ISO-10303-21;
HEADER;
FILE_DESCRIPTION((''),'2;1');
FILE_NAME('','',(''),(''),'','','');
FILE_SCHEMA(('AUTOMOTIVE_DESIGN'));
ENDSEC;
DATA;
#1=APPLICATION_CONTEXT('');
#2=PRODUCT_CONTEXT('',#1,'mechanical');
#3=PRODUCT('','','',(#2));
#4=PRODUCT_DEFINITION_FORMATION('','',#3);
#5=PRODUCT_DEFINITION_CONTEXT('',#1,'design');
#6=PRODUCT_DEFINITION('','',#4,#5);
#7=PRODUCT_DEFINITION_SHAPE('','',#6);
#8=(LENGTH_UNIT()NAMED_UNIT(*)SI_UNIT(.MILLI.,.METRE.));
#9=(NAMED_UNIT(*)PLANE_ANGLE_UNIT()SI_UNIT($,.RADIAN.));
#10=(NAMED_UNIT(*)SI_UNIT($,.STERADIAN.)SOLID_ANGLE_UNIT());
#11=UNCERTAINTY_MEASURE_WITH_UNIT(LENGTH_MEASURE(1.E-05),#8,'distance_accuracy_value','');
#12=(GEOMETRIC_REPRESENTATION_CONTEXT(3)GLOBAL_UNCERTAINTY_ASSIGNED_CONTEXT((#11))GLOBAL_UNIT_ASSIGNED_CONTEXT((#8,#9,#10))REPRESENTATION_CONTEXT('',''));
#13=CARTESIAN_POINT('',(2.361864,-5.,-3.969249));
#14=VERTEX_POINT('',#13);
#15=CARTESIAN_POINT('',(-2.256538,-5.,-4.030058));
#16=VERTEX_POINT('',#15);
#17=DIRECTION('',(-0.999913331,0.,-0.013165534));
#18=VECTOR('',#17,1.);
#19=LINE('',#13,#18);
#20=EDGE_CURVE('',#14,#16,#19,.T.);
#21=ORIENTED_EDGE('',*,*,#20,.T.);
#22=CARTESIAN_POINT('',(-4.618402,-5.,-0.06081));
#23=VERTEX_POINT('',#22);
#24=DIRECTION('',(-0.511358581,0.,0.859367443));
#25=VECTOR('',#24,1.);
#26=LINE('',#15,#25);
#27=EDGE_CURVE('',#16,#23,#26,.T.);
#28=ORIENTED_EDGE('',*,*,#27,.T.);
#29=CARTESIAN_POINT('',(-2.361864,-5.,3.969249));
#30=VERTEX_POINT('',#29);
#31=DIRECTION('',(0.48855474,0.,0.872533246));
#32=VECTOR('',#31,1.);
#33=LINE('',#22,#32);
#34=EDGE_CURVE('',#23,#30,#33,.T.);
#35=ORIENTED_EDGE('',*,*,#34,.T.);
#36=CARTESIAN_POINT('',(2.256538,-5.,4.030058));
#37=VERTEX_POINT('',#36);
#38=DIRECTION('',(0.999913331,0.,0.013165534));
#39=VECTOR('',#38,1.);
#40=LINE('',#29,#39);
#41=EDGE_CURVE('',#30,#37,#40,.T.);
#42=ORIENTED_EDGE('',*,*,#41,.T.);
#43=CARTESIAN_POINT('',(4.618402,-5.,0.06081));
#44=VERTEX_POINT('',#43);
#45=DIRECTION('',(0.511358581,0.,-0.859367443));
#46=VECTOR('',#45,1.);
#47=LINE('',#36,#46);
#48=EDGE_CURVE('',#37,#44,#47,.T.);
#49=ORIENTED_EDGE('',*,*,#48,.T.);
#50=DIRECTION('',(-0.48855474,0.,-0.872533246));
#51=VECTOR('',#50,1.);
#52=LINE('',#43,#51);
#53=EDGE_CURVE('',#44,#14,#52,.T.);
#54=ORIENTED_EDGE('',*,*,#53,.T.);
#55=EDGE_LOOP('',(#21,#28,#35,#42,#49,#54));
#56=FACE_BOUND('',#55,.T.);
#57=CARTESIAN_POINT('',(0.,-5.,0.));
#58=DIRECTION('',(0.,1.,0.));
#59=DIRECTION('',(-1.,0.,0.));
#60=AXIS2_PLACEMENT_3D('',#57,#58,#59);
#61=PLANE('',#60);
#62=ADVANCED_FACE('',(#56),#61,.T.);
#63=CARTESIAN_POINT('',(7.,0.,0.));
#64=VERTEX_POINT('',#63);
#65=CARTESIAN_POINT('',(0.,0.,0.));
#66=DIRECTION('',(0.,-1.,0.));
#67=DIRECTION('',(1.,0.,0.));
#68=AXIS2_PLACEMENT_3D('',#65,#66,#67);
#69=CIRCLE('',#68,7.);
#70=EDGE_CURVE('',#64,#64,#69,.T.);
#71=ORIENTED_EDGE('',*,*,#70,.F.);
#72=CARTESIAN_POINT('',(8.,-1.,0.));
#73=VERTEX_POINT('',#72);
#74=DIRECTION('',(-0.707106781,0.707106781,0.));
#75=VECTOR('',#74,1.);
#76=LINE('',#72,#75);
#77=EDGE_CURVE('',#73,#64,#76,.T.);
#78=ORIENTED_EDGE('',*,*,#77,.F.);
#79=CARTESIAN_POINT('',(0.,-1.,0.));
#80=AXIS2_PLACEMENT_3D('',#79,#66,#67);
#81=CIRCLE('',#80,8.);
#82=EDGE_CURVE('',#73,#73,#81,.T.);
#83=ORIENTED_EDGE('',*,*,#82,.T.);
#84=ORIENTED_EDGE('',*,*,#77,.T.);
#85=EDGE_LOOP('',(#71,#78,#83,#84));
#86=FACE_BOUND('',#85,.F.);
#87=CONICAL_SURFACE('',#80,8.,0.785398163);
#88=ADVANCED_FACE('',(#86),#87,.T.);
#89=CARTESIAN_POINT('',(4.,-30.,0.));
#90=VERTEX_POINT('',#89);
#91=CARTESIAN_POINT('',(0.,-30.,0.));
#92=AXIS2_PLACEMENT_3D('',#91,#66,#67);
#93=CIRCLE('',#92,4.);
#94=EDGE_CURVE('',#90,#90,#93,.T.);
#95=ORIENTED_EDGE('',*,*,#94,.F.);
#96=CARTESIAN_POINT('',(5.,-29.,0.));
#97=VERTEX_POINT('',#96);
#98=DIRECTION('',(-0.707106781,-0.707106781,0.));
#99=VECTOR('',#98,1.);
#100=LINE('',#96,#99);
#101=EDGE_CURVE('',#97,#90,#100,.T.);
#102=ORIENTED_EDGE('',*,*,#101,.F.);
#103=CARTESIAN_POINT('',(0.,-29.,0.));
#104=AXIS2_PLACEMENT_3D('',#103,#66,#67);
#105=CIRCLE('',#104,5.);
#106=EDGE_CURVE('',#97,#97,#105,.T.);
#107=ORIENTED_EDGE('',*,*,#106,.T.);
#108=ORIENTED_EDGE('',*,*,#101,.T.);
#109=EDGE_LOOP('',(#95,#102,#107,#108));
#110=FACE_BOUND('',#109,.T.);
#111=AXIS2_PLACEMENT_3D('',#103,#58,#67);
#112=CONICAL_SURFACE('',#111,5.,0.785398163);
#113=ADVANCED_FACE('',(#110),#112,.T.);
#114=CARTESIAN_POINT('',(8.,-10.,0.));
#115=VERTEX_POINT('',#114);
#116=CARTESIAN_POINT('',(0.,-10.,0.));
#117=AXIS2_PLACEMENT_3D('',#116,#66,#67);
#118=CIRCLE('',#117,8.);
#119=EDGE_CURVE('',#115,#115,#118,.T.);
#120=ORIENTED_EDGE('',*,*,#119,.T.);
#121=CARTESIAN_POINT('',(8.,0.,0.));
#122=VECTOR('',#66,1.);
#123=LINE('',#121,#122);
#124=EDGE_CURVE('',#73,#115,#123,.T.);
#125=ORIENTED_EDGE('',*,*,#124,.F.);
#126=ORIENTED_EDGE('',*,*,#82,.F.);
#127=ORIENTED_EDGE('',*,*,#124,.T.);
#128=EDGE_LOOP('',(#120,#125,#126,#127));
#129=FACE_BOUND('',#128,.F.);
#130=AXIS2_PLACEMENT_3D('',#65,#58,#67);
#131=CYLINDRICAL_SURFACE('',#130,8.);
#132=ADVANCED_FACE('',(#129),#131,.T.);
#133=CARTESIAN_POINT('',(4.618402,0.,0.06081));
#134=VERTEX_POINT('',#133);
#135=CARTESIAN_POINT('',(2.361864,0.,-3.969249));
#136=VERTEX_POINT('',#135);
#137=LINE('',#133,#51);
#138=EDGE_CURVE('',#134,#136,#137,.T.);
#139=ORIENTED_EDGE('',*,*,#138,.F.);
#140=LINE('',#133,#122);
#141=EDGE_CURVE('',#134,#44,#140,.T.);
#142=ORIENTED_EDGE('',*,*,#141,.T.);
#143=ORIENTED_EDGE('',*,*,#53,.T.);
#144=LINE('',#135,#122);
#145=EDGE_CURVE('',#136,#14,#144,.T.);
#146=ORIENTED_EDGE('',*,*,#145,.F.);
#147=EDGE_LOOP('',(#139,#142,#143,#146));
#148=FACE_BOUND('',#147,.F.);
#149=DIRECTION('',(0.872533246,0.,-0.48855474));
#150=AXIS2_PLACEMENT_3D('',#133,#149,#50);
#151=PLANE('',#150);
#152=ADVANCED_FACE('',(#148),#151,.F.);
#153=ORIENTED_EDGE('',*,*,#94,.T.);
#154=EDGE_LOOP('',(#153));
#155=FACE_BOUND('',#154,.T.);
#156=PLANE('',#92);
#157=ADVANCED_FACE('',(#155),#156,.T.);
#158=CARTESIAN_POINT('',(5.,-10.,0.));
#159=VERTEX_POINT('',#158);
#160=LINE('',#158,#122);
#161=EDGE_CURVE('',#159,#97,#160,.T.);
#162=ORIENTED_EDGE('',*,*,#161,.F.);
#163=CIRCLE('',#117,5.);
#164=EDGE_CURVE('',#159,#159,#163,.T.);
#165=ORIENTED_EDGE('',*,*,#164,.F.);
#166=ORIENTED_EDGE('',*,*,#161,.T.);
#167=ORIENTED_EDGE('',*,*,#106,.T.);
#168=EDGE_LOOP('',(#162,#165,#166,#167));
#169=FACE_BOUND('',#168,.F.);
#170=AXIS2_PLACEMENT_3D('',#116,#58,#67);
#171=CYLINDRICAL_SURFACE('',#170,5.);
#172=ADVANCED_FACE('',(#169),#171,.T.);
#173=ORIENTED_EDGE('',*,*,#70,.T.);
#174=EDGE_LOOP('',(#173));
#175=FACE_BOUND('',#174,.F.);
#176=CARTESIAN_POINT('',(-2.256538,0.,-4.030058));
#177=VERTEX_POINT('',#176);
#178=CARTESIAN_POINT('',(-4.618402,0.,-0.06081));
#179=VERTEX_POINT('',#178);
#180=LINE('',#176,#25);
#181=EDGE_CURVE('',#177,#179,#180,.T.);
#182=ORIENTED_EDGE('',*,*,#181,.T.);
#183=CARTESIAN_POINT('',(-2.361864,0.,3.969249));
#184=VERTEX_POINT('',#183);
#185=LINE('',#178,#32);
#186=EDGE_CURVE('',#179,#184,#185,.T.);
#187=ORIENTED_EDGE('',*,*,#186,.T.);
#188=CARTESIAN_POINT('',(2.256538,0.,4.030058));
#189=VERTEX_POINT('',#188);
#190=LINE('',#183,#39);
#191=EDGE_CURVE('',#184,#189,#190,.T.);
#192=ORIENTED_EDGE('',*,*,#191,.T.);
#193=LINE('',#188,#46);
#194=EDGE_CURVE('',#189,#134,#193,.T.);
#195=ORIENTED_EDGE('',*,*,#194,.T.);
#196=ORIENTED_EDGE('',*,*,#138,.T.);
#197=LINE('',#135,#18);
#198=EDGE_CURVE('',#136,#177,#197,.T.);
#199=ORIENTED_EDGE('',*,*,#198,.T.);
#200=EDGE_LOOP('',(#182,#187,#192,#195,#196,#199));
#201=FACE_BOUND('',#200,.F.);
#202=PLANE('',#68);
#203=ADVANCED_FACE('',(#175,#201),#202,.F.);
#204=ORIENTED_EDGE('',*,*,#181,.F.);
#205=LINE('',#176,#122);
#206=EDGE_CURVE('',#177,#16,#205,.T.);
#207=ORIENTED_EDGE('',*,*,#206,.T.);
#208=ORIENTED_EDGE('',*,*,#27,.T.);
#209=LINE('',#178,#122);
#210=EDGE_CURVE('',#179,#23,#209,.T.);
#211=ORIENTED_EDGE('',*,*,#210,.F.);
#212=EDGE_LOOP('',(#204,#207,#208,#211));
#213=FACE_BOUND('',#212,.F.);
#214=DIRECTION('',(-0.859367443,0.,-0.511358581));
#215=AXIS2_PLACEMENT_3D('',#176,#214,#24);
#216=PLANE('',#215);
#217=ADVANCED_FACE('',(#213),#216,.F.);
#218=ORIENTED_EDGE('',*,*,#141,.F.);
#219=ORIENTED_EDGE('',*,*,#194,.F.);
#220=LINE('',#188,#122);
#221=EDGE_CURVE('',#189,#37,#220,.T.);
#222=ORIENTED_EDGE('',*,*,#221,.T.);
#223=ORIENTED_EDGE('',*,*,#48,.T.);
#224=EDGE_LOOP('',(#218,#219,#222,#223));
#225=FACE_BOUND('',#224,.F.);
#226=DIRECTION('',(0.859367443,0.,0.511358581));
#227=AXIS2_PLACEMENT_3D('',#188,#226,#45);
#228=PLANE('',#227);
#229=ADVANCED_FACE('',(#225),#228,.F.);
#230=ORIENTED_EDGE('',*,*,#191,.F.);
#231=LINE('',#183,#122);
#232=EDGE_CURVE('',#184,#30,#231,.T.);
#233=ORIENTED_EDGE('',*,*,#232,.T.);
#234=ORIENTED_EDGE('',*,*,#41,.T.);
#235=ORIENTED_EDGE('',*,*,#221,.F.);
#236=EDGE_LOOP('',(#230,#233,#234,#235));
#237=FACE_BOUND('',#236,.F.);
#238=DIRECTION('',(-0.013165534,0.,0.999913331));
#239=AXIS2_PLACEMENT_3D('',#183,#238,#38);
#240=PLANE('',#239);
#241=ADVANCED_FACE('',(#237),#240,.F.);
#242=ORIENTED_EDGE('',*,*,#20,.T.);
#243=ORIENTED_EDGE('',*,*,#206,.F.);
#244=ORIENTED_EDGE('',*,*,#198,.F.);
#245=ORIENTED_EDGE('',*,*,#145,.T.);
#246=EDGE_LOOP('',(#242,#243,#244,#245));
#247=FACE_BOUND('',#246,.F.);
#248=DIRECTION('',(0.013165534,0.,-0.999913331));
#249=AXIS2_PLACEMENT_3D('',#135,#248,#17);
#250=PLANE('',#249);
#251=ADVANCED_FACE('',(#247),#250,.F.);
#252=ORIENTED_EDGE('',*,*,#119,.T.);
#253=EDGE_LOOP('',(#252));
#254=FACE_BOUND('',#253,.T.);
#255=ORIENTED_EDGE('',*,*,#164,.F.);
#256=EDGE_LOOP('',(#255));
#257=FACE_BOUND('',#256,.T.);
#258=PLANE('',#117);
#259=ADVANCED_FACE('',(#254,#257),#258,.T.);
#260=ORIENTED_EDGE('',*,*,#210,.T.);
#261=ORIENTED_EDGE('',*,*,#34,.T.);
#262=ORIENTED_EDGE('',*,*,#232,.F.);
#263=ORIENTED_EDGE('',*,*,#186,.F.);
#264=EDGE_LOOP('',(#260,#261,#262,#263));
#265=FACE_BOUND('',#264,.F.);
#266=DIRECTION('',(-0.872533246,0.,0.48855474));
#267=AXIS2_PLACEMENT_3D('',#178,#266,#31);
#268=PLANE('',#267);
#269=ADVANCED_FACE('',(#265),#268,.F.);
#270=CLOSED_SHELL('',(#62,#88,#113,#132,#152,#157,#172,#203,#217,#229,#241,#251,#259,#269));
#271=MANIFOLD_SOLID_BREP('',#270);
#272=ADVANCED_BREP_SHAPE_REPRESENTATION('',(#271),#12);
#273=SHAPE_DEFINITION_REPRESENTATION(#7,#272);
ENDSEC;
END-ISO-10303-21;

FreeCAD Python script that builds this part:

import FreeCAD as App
import Part
import Sketcher


def edges_at(feature, points):
    """Names of the edges that pass closest to the given points."""
    edges = feature.Shape.Edges
    near = lambda p: min(range(len(edges)), key=lambda i: edges[i].distToShape(Part.Vertex(*p))[0])
    return sorted({f"Edge{near(p) + 1}" for p in points})


def add_polygon(sketch, points):
    """Adds a closed chain of lines whose ends are joined by coincident constraints."""
    first, n = sketch.GeometryCount, len(points)
    for a, b in zip(points, points[1:] + points[:1]):
        sketch.addGeometry(Part.LineSegment(App.Vector(*a, 0), App.Vector(*b, 0)), False)
    for i in range(n):
        sketch.addConstraint(Sketcher.Constraint("Coincident", first + i, 2, first + (i + 1) % n, 1))

doc = App.newDocument("Part")
body = doc.addObject("PartDesign::Body", "Body")

sketch1 = doc.addObject("Sketcher::SketchObject", "Sketch")
body.addObject(sketch1)
sketch1.AttachmentSupport = (doc.XZ_Plane, [""])
sketch1.MapMode = "FlatFace"
sketch1.addGeometry(Part.Circle(App.Vector(0, 0, 0), App.Vector(0, 0, 1), 8), False)
sketch1.addConstraint([
    Sketcher.Constraint("Coincident", 0, 3, -1, 1),
    Sketcher.Constraint("Diameter", 0, 16.0),
])
pad1 = doc.addObject("PartDesign::Pad", "Pad")
body.addObject(pad1)
pad1.Profile = sketch1
pad1.Length = 10

sketch2 = doc.addObject("Sketcher::SketchObject", "Sketch001")
body.addObject(sketch2)
sketch2.AttachmentSupport = (doc.XZ_Plane, [""])
sketch2.MapMode = "FlatFace"
sketch2.AttachmentOffset = App.Placement(App.Vector(0, 0, 10), App.Rotation())
sketch2.addGeometry(Part.Circle(App.Vector(0, 0, 0), App.Vector(0, 0, 1), 5), False)
sketch2.addConstraint([
    Sketcher.Constraint("Coincident", 0, 3, -1, 1),
    Sketcher.Constraint("Diameter", 0, 10.0),
])
pad2 = doc.addObject("PartDesign::Pad", "Pad001")
body.addObject(pad2)
pad2.Profile = sketch2
pad2.Length = 20
doc.recompute()

chamfer = doc.addObject("PartDesign::Chamfer", "Chamfer")
body.addObject(chamfer)
chamfer.Base = (pad2, edges_at(pad2, [(-5, -30, 0), (-8, 0, 0)]))
chamfer.Size = 1

sketch3 = doc.addObject("Sketcher::SketchObject", "Sketch002")
body.addObject(sketch3)
sketch3.AttachmentSupport = (doc.XZ_Plane, [""])
sketch3.MapMode = "FlatFace"
add_polygon(sketch3, [(4.618402, 0.06081), (2.361864, -3.969249), (-2.256538, -4.030058), (-4.618402, -0.06081), (-2.361864, 3.969249), (2.256538, 4.030058)])
sketch3.addConstraint([
    Sketcher.Constraint("Distance", 2, 4.618802),
    Sketcher.Constraint("Distance", 5, 4.618802),
    Sketcher.Constraint("DistanceX", 2, 2, -1, 1, 4.618402),
    Sketcher.Constraint("DistanceX", -1, 1, 5, 2, 4.618402),
    Sketcher.Constraint("DistanceX", 1, 2, 0, 2, 4.618402),
    Sketcher.Constraint("DistanceX", 3, 2, 4, 2, 4.618402),
    Sketcher.Constraint("DistanceY", 0, 2, -1, 1, 3.969249),
    Sketcher.Constraint("DistanceY", 1, 2, -1, 1, 4.030058),
    Sketcher.Constraint("DistanceY", 2, 2, -1, 1, 0.06081),
    Sketcher.Constraint("DistanceY", -1, 1, 3, 2, 3.969249),
    Sketcher.Constraint("DistanceY", -1, 1, 4, 2, 4.030058),
    Sketcher.Constraint("DistanceY", -1, 1, 5, 2, 0.06081),
])
pocket1 = doc.addObject("PartDesign::Pocket", "Pocket")
body.addObject(pocket1)
pocket1.Profile = sketch3
pocket1.Length = 5
pocket1.Reversed = True

doc.recompute()
